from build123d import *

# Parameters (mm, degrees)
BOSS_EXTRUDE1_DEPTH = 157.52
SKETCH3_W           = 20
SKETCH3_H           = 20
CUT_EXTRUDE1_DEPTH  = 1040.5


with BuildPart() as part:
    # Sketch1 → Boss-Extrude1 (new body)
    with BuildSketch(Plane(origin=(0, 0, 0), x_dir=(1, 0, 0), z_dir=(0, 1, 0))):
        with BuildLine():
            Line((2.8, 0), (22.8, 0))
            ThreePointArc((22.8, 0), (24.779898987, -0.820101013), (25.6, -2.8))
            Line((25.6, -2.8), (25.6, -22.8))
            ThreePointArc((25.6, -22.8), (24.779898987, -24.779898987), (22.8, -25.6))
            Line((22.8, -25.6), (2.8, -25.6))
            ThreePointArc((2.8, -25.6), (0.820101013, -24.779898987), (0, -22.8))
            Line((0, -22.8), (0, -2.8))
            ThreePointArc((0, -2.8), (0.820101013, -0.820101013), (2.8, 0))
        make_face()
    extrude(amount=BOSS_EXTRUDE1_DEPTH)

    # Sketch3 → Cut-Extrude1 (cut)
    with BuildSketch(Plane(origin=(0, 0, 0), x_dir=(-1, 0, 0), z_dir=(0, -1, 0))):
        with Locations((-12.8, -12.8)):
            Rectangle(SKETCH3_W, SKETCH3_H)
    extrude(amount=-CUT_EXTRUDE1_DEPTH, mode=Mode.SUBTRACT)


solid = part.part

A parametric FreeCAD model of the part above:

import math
import FreeCAD as App
import Part
import Sketcher

doc = App.newDocument("Part")
body = doc.addObject("PartDesign::Body", "Body")

sketch1 = body.newObject("Sketcher::SketchObject", "Sketch")
sketch1.AttachmentSupport = (doc.getObject("XZ_Plane"), [""])
sketch1.MapMode = "FlatFace"
sketch1.addGeometry([
    Part.LineSegment(App.Vector(22.8, 0, 0), App.Vector(2.8, 0, 0)),
    Part.ArcOfCircle(Part.Circle(App.Vector(2.8, 2.8, 0), App.Vector(0, 0, 1), 2.8), math.radians(-180), math.radians(-90)),
    Part.LineSegment(App.Vector(0, 2.8, 0), App.Vector(0, 22.8, 0)),
    Part.ArcOfCircle(Part.Circle(App.Vector(2.8, 22.8, 0), App.Vector(0, 0, 1), 2.8), math.radians(90), math.radians(180)),
    Part.LineSegment(App.Vector(2.8, 25.6, 0), App.Vector(22.8, 25.6, 0)),
    Part.ArcOfCircle(Part.Circle(App.Vector(22.8, 22.8, 0), App.Vector(0, 0, 1), 2.8), math.radians(0), math.radians(90)),
    Part.LineSegment(App.Vector(25.6, 22.8, 0), App.Vector(25.6, 2.8, 0)),
    Part.ArcOfCircle(Part.Circle(App.Vector(22.8, 2.8, 0), App.Vector(0, 0, 1), 2.8), math.radians(-90), math.radians(0)),
], False)
sketch1.addConstraint([
    Sketcher.Constraint("Tangent", 0, 2, 1, 2),
    Sketcher.Constraint("Tangent", 1, 1, 2, 1),
    Sketcher.Constraint("Tangent", 2, 2, 3, 2),
    Sketcher.Constraint("Tangent", 3, 1, 4, 1),
    Sketcher.Constraint("Tangent", 4, 2, 5, 2),
    Sketcher.Constraint("Tangent", 5, 1, 6, 1),
    Sketcher.Constraint("Tangent", 6, 2, 7, 2),
    Sketcher.Constraint("Tangent", 7, 1, 0, 1),
    Sketcher.Constraint("Horizontal", 0),
    Sketcher.Constraint("Vertical", 2),
    Sketcher.Constraint("Horizontal", 4),
    Sketcher.Constraint("Vertical", 6),
    Sketcher.Constraint("Equal", 1, 3),
    Sketcher.Constraint("Equal", 3, 5),
    Sketcher.Constraint("Equal", 5, 7),
    Sketcher.Constraint("PointOnObject", 0, 2, -1),
    Sketcher.Constraint("PointOnObject", 1, 1, -2),
    Sketcher.Constraint("Equal", 4, 2),
    Sketcher.Constraint("Radius", 1, 2.8),
    Sketcher.Constraint("DistanceX", 0, 2, 0, 1, 20.0),
])
pad1 = body.newObject("PartDesign::Pad", "Pad")
pad1.Profile = sketch1
pad1.Length = 157.52
pad1.Reversed = True

sketch2 = body.newObject("Sketcher::SketchObject", "Sketch001")
sketch2.AttachmentSupport = (doc.getObject("XZ_Plane"), [""])
sketch2.MapMode = "FlatFace"
sketch2.addGeometry([
    Part.LineSegment(App.Vector(23, 3, 0), App.Vector(23, 23, 0)),
    Part.LineSegment(App.Vector(23, 23, 0), App.Vector(3, 23, 0)),
    Part.LineSegment(App.Vector(3, 23, 0), App.Vector(3, 3, 0)),
    Part.LineSegment(App.Vector(3, 3, 0), App.Vector(23, 3, 0)),
], False)
sketch2.addConstraint([
    Sketcher.Constraint("Coincident", 0, 2, 1, 1),
    Sketcher.Constraint("Coincident", 1, 2, 2, 1),
    Sketcher.Constraint("Coincident", 2, 2, 3, 1),
    Sketcher.Constraint("Coincident", 3, 2, 0, 1),
    Sketcher.Constraint("Vertical", 0),
    Sketcher.Constraint("Horizontal", 1),
    Sketcher.Constraint("Vertical", 2),
    Sketcher.Constraint("Horizontal", 3),
    Sketcher.Constraint("Equal", 3, 0),
    Sketcher.Constraint("DistanceX", 1, 2, 1, 1, 20.0),
    Sketcher.Constraint("DistanceX", -1, 1, 0, 2, 22.8),
    Sketcher.Constraint("DistanceY", -1, 1, 0, 2, 22.8),
])
pocket1 = body.newObject("PartDesign::Pocket", "Pocket")
pocket1.Profile = sketch2
pocket1.Length = 1040.5

doc.recompute()
